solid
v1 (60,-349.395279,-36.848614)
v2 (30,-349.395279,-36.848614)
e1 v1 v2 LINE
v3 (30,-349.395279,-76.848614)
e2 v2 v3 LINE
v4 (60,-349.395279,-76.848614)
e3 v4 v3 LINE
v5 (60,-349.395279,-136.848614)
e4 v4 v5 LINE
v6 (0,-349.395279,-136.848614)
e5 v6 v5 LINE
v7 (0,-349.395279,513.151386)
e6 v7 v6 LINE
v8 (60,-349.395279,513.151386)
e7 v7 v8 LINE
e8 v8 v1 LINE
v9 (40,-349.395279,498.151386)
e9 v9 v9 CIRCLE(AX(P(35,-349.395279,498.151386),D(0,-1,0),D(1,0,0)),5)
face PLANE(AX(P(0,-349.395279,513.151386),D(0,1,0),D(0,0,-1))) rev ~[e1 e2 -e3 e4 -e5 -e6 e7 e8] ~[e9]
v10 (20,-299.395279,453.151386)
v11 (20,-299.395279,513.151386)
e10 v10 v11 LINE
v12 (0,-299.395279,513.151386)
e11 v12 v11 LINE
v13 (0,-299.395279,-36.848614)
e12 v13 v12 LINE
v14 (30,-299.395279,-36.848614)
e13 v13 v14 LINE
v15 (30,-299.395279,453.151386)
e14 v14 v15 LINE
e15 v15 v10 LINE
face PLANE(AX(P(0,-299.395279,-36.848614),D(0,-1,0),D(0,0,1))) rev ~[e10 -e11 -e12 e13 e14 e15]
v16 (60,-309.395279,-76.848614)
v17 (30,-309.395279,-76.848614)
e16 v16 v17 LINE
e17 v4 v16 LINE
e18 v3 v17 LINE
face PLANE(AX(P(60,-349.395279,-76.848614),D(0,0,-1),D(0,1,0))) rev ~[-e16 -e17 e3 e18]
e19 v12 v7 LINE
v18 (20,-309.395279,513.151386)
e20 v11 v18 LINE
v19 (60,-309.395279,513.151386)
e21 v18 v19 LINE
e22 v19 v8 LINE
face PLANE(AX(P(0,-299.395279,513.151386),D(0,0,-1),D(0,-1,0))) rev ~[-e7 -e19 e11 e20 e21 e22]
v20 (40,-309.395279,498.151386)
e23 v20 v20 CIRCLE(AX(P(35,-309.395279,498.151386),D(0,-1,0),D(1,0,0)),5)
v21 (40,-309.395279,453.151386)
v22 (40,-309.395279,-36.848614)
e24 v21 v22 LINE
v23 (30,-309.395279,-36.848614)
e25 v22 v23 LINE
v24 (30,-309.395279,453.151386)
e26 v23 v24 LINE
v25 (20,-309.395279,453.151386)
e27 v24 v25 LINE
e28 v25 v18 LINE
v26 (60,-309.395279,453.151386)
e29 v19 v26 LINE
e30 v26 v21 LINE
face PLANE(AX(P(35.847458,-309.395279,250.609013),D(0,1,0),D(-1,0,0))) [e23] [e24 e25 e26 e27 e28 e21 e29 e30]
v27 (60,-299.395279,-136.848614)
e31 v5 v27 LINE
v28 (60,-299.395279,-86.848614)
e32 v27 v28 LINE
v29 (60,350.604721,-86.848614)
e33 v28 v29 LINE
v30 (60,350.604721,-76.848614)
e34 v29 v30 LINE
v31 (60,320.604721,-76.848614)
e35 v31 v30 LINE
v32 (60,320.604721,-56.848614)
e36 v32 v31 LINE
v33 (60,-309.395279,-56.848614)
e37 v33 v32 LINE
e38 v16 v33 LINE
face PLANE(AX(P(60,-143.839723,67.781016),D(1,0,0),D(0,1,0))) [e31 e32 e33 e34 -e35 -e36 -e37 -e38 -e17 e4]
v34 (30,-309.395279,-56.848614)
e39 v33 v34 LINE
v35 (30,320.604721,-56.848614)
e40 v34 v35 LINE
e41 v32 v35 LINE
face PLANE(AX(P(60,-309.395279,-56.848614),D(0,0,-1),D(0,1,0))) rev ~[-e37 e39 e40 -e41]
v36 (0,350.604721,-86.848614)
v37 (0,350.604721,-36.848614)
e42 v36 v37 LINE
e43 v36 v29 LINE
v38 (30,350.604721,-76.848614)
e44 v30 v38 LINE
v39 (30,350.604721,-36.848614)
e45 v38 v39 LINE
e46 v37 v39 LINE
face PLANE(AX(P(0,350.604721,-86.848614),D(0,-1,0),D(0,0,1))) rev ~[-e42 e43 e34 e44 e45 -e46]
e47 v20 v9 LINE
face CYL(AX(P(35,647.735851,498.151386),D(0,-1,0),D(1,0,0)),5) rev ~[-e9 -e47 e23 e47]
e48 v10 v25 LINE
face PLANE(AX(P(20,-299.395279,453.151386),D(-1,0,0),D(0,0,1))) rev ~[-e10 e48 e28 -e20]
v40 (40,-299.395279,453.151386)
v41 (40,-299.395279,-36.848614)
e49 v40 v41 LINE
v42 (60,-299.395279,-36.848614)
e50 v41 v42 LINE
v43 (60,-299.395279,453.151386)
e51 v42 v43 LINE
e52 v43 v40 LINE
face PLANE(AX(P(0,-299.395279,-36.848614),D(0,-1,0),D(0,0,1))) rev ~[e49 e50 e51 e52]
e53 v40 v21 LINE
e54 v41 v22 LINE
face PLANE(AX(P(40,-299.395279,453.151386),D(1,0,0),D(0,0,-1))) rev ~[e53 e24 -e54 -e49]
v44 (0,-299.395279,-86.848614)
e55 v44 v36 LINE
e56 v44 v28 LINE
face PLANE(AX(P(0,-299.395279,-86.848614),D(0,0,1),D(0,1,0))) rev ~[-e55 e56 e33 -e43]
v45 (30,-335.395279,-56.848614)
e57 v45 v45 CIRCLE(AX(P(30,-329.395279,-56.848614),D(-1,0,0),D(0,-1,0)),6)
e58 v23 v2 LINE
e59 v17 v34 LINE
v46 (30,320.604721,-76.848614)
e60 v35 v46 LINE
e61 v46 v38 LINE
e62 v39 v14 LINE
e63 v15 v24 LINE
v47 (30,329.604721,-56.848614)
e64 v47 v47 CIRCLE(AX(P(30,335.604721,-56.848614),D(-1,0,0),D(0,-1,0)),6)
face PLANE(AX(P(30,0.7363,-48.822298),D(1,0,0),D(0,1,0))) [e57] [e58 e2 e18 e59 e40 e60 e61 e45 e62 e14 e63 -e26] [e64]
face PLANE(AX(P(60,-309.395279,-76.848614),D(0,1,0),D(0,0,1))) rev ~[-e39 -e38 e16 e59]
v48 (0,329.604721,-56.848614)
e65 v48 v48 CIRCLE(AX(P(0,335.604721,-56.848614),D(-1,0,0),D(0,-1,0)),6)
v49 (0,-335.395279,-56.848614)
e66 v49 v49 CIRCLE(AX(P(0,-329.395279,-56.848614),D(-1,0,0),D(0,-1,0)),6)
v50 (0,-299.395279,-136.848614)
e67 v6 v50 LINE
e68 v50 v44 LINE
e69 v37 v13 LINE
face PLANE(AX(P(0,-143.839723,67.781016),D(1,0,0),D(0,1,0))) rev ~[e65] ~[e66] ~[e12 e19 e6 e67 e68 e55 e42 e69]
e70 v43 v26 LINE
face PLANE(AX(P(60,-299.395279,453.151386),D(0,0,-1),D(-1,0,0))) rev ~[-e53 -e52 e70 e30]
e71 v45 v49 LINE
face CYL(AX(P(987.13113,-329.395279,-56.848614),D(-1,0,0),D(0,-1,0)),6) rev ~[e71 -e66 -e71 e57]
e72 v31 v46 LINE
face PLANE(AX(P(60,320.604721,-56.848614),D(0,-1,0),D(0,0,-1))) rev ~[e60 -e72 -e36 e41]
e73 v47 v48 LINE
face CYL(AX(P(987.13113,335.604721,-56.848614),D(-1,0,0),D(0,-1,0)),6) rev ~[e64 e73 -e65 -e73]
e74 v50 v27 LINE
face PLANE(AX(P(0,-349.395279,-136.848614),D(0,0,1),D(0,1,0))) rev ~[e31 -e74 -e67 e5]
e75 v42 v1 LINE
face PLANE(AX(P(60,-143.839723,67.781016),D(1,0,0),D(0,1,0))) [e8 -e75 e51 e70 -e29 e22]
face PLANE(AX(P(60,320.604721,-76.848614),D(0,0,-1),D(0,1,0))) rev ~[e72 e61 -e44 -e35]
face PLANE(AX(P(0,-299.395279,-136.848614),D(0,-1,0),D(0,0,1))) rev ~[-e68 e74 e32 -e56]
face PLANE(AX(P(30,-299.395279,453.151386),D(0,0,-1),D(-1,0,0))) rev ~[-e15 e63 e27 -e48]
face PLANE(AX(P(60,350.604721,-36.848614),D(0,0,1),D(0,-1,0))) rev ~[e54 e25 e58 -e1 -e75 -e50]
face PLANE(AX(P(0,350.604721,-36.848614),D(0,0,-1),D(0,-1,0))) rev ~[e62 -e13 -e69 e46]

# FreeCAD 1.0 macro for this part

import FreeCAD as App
import Part
import Sketcher

doc = App.newDocument("Part")
body = doc.addObject("PartDesign::Body", "Body")

sketch1 = body.newObject("Sketcher::SketchObject", "Sketch")
sketch1.AttachmentSupport = (doc.getObject("YZ_Plane"), [""])
sketch1.MapMode = "FlatFace"
sketch1.addGeometry(Part.LineSegment(App.Vector(-299.395279, -136.848614, 0), App.Vector(-299.395279, -86.848614, 0)), False)
sketch1.addGeometry(Part.LineSegment(App.Vector(-299.395279, -86.848614, 0), App.Vector(350.604721, -86.848614, 0)), False)
sketch1.addGeometry(Part.LineSegment(App.Vector(350.604721, -86.848614, 0), App.Vector(350.604721, -36.848614, 0)), False)
sketch1.addGeometry(Part.LineSegment(App.Vector(350.604721, -36.848614, 0), App.Vector(-299.395279, -36.848614, 0)), False)
sketch1.addGeometry(Part.LineSegment(App.Vector(-299.395279, -36.848614, 0), App.Vector(-299.395279, 513.151386, 0)), False)
sketch1.addGeometry(Part.LineSegment(App.Vector(-299.395279, 513.151386, 0), App.Vector(-349.395279, 513.151386, 0)), False)
sketch1.addGeometry(Part.LineSegment(App.Vector(-349.395279, 513.151386, 0), App.Vector(-349.395279, -136.848614, 0)), False)
sketch1.addGeometry(Part.LineSegment(App.Vector(-349.395279, -136.848614, 0), App.Vector(-299.395279, -136.848614, 0)), False)
sketch1.addConstraint(Sketcher.Constraint("Coincident", 0, 2, 1, 1))
sketch1.addConstraint(Sketcher.Constraint("Coincident", 1, 2, 2, 1))
sketch1.addConstraint(Sketcher.Constraint("Coincident", 2, 2, 3, 1))
sketch1.addConstraint(Sketcher.Constraint("Coincident", 3, 2, 4, 1))
sketch1.addConstraint(Sketcher.Constraint("Coincident", 4, 2, 5, 1))
sketch1.addConstraint(Sketcher.Constraint("Coincident", 5, 2, 6, 1))
sketch1.addConstraint(Sketcher.Constraint("Coincident", 6, 2, 7, 1))
sketch1.addConstraint(Sketcher.Constraint("Coincident", 7, 2, 0, 1))
sketch1.addConstraint(Sketcher.Constraint("Vertical", 0))
sketch1.addConstraint(Sketcher.Constraint("Horizontal", 1))
sketch1.addConstraint(Sketcher.Constraint("Vertical", 2))
sketch1.addConstraint(Sketcher.Constraint("Horizontal", 3))
sketch1.addConstraint(Sketcher.Constraint("Vertical", 4))
sketch1.addConstraint(Sketcher.Constraint("Horizontal", 5))
sketch1.addConstraint(Sketcher.Constraint("Vertical", 6))
sketch1.addConstraint(Sketcher.Constraint("Horizontal", 7))
sketch1.addConstraint(Sketcher.Constraint("Vertical", 0, 2, 3, 2))
sketch1.addConstraint(Sketcher.Constraint("Equal", 7, 0))
sketch1.addConstraint(Sketcher.Constraint("Equal", 0, 2))
sketch1.addConstraint(Sketcher.Constraint("Equal", 3, 6))
sketch1.addConstraint(Sketcher.Constraint("DistanceX", 1, 1, 1, 2, 650.0))
sketch1.addConstraint(Sketcher.Constraint("DistanceX", 5, 2, 5, 1, 50.0))
sketch1.addConstraint(Sketcher.Constraint("DistanceX", 0, 2, -1, 1, 299.395279))
sketch1.addConstraint(Sketcher.Constraint("DistanceY", 0, 2, -1, 1, 86.848614))
pad1 = body.newObject("PartDesign::Pad", "Pad")
pad1.Profile = sketch1
pad1.Length = 60

sketch2 = body.newObject("Sketcher::SketchObject", "Sketch001")
sketch2.AttachmentSupport = (doc.getObject("YZ_Plane"), [""])
sketch2.MapMode = "FlatFace"
sketch2.AttachmentOffset = App.Placement(App.Vector(0, 0, 60), App.Rotation())
sketch2.addGeometry(Part.LineSegment(App.Vector(-349.395279, -36.848614, 0), App.Vector(-349.395279, -76.848614, 0)), False)
sketch2.addGeometry(Part.LineSegment(App.Vector(-349.395279, -76.848614, 0), App.Vector(-309.395279, -76.848614, 0)), False)
sketch2.addGeometry(Part.LineSegment(App.Vector(-309.395279, -76.848614, 0), App.Vector(-309.395279, -56.848614, 0)), False)
sketch2.addGeometry(Part.LineSegment(App.Vector(-309.395279, -56.848614, 0), App.Vector(320.604721, -56.848614, 0)), False)
sketch2.addGeometry(Part.LineSegment(App.Vector(320.604721, -56.848614, 0), App.Vector(320.604721, -76.848614, 0)), False)
sketch2.addGeometry(Part.LineSegment(App.Vector(320.604721, -76.848614, 0), App.Vector(350.604721, -76.848614, 0)), False)
sketch2.addGeometry(Part.LineSegment(App.Vector(350.604721, -76.848614, 0), App.Vector(350.604721, -36.848614, 0)), False)
sketch2.addGeometry(Part.LineSegment(App.Vector(350.604721, -36.848614, 0), App.Vector(-349.395279, -36.848614, 0)), False)
sketch2.addConstraint(Sketcher.Constraint("Coincident", 0, 2, 1, 1))
sketch2.addConstraint(Sketcher.Constraint("Coincident", 1, 2, 2, 1))
sketch2.addConstraint(Sketcher.Constraint("Coincident", 2, 2, 3, 1))
sketch2.addConstraint(Sketcher.Constraint("Coincident", 3, 2, 4, 1))
sketch2.addConstraint(Sketcher.Constraint("Coincident", 4, 2, 5, 1))
sketch2.addConstraint(Sketcher.Constraint("Coincident", 5, 2, 6, 1))
sketch2.addConstraint(Sketcher.Constraint("Coincident", 6, 2, 7, 1))
sketch2.addConstraint(Sketcher.Constraint("Coincident", 7, 2, 0, 1))
sketch2.addConstraint(Sketcher.Constraint("Vertical", 0))
sketch2.addConstraint(Sketcher.Constraint("Horizontal", 1))
sketch2.addConstraint(Sketcher.Constraint("Vertical", 2))
sketch2.addConstraint(Sketcher.Constraint("Horizontal", 3))
sketch2.addConstraint(Sketcher.Constraint("Vertical", 4))
sketch2.addConstraint(Sketcher.Constraint("Horizontal", 5))
sketch2.addConstraint(Sketcher.Constraint("Vertical", 6))
sketch2.addConstraint(Sketcher.Constraint("Horizontal", 7))
sketch2.addConstraint(Sketcher.Constraint("Horizontal", 1, 2, 4, 2))
sketch2.addConstraint(Sketcher.Constraint("Equal", 1, 0))
sketch2.addConstraint(Sketcher.Constraint("DistanceX", 1, 1, 1, 2, 40.0))
sketch2.addConstraint(Sketcher.Constraint("DistanceX", 3, 1, 3, 2, 630.0))
sketch2.addConstraint(Sketcher.Constraint("DistanceX", 5, 1, 5, 2, 30.0))
sketch2.addConstraint(Sketcher.Constraint("DistanceY", 2, 1, 2, 2, 20.0))
sketch2.addConstraint(Sketcher.Constraint("DistanceX", 0, 2, -1, 1, 349.395279))
sketch2.addConstraint(Sketcher.Constraint("DistanceY", 0, 2, -1, 1, 76.848614))
pocket1 = body.newObject("PartDesign::Pocket", "Pocket")
pocket1.Profile = sketch2
pocket1.Length = 30

sketch3 = body.newObject("Sketcher::SketchObject", "Sketch002")
sketch3.AttachmentSupport = (doc.getObject("YZ_Plane"), [""])
sketch3.MapMode = "FlatFace"
sketch3.AttachmentOffset = App.Placement(App.Vector(0, 0, 30), App.Rotation())
sketch3.addGeometry(Part.Circle(App.Vector(-329.395279, -56.848614, 0), App.Vector(0, 0, 1), 6), False)
sketch3.addGeometry(Part.Circle(App.Vector(335.604721, -56.848614, 0), App.Vector(0, 0, 1), 6), False)
sketch3.addConstraint(Sketcher.Constraint("Equal", 0, 1))
sketch3.addConstraint(Sketcher.Constraint("Horizontal", 0, 3, 1, 3))
sketch3.addConstraint(Sketcher.Constraint("Diameter", 0, 12.0))
sketch3.addConstraint(Sketcher.Constraint("DistanceX", 0, 3, 1, 3, 665.0))
sketch3.addConstraint(Sketcher.Constraint("DistanceX", 0, 3, -1, 1, 329.395279))
sketch3.addConstraint(Sketcher.Constraint("DistanceY", 0, 3, -1, 1, 56.848614))
doc.recompute()
hole = body.newObject("PartDesign::Hole", "Hole")
hole.Profile = sketch3
hole.ThreadType = "None"
hole.Diameter = 12
hole.DepthType = "ThroughAll"

sketch4 = body.newObject("Sketcher::SketchObject", "Sketch003")
sketch4.AttachmentSupport = (doc.getObject("XZ_Plane"), [""])
sketch4.MapMode = "FlatFace"
sketch4.AttachmentOffset = App.Placement(App.Vector(0, 0, 299.395279), App.Rotation())
sketch4.addGeometry(Part.LineSegment(App.Vector(40, -36.848614, 0), App.Vector(30, -36.848614, 0)), False)
sketch4.addGeometry(Part.LineSegment(App.Vector(30, -36.848614, 0), App.Vector(30, 453.151386, 0)), False)
sketch4.addGeometry(Part.LineSegment(App.Vector(30, 453.151386, 0), App.Vector(20, 453.151386, 0)), False)
sketch4.addGeometry(Part.LineSegment(App.Vector(20, 453.151386, 0), App.Vector(20, 513.151386, 0)), False)
sketch4.addGeometry(Part.LineSegment(App.Vector(20, 513.151386, 0), App.Vector(60, 513.151386, 0)), False)
sketch4.addGeometry(Part.LineSegment(App.Vector(60, 513.151386, 0), App.Vector(60, 453.151386, 0)), False)
sketch4.addGeometry(Part.LineSegment(App.Vector(60, 453.151386, 0), App.Vector(40, 453.151386, 0)), False)
sketch4.addGeometry(Part.LineSegment(App.Vector(40, 453.151386, 0), App.Vector(40, -36.848614, 0)), False)
sketch4.addConstraint(Sketcher.Constraint("Coincident", 0, 2, 1, 1))
sketch4.addConstraint(Sketcher.Constraint("Coincident", 1, 2, 2, 1))
sketch4.addConstraint(Sketcher.Constraint("Coincident", 2, 2, 3, 1))
sketch4.addConstraint(Sketcher.Constraint("Coincident", 3, 2, 4, 1))
sketch4.addConstraint(Sketcher.Constraint("Coincident", 4, 2, 5, 1))
sketch4.addConstraint(Sketcher.Constraint("Coincident", 5, 2, 6, 1))
sketch4.addConstraint(Sketcher.Constraint("Coincident", 6, 2, 7, 1))
sketch4.addConstraint(Sketcher.Constraint("Coincident", 7, 2, 0, 1))
sketch4.addConstraint(Sketcher.Constraint("Horizontal", 0))
sketch4.addConstraint(Sketcher.Constraint("Vertical", 1))
sketch4.addConstraint(Sketcher.Constraint("Horizontal", 2))
sketch4.addConstraint(Sketcher.Constraint("Vertical", 3))
sketch4.addConstraint(Sketcher.Constraint("Horizontal", 4))
sketch4.addConstraint(Sketcher.Constraint("Vertical", 5))
sketch4.addConstraint(Sketcher.Constraint("Horizontal", 6))
sketch4.addConstraint(Sketcher.Constraint("Vertical", 7))
sketch4.addConstraint(Sketcher.Constraint("Horizontal", 2, 2, 5, 2))
sketch4.addConstraint(Sketcher.Constraint("Equal", 0, 2))
sketch4.addConstraint(Sketcher.Constraint("DistanceX", 0, 2, 0, 1, 10.0))
sketch4.addConstraint(Sketcher.Constraint("DistanceX", 4, 1, 4, 2, 40.0))
sketch4.addConstraint(Sketcher.Constraint("DistanceY", 1, 1, 1, 2, 490.0))
sketch4.addConstraint(Sketcher.Constraint("DistanceY", 3, 1, 3, 2, 60.0))
sketch4.addConstraint(Sketcher.Constraint("DistanceX", -1, 1, 0, 2, 30.0))
sketch4.addConstraint(Sketcher.Constraint("DistanceY", 0, 2, -1, 1, 36.848614))
pocket2 = body.newObject("PartDesign::Pocket", "Pocket001")
pocket2.Profile = sketch4
pocket2.Length = 10
pocket2.Reversed = True

sketch5 = body.newObject("Sketcher::SketchObject", "Sketch004")
sketch5.AttachmentSupport = (doc.getObject("XZ_Plane"), [""])
sketch5.MapMode = "FlatFace"
sketch5.AttachmentOffset = App.Placement(App.Vector(0, 0, 309.395279), App.Rotation())
sketch5.addGeometry(Part.Circle(App.Vector(35, 498.151386, 0), App.Vector(0, 0, 1), 5), False)
sketch5.addConstraint(Sketcher.Constraint("Diameter", 0, 10.0))
sketch5.addConstraint(Sketcher.Constraint("DistanceX", -1, 1, 0, 3, 35.0))
sketch5.addConstraint(Sketcher.Constraint("DistanceY", -1, 1, 0, 3, 498.151386))
doc.recompute()
hole2 = body.newObject("PartDesign::Hole", "Hole001")
hole2.Profile = sketch5
hole2.ThreadType = "None"
hole2.Diameter = 10
hole2.DepthType = "ThroughAll"
hole2.Reversed = True

doc.recompute()
